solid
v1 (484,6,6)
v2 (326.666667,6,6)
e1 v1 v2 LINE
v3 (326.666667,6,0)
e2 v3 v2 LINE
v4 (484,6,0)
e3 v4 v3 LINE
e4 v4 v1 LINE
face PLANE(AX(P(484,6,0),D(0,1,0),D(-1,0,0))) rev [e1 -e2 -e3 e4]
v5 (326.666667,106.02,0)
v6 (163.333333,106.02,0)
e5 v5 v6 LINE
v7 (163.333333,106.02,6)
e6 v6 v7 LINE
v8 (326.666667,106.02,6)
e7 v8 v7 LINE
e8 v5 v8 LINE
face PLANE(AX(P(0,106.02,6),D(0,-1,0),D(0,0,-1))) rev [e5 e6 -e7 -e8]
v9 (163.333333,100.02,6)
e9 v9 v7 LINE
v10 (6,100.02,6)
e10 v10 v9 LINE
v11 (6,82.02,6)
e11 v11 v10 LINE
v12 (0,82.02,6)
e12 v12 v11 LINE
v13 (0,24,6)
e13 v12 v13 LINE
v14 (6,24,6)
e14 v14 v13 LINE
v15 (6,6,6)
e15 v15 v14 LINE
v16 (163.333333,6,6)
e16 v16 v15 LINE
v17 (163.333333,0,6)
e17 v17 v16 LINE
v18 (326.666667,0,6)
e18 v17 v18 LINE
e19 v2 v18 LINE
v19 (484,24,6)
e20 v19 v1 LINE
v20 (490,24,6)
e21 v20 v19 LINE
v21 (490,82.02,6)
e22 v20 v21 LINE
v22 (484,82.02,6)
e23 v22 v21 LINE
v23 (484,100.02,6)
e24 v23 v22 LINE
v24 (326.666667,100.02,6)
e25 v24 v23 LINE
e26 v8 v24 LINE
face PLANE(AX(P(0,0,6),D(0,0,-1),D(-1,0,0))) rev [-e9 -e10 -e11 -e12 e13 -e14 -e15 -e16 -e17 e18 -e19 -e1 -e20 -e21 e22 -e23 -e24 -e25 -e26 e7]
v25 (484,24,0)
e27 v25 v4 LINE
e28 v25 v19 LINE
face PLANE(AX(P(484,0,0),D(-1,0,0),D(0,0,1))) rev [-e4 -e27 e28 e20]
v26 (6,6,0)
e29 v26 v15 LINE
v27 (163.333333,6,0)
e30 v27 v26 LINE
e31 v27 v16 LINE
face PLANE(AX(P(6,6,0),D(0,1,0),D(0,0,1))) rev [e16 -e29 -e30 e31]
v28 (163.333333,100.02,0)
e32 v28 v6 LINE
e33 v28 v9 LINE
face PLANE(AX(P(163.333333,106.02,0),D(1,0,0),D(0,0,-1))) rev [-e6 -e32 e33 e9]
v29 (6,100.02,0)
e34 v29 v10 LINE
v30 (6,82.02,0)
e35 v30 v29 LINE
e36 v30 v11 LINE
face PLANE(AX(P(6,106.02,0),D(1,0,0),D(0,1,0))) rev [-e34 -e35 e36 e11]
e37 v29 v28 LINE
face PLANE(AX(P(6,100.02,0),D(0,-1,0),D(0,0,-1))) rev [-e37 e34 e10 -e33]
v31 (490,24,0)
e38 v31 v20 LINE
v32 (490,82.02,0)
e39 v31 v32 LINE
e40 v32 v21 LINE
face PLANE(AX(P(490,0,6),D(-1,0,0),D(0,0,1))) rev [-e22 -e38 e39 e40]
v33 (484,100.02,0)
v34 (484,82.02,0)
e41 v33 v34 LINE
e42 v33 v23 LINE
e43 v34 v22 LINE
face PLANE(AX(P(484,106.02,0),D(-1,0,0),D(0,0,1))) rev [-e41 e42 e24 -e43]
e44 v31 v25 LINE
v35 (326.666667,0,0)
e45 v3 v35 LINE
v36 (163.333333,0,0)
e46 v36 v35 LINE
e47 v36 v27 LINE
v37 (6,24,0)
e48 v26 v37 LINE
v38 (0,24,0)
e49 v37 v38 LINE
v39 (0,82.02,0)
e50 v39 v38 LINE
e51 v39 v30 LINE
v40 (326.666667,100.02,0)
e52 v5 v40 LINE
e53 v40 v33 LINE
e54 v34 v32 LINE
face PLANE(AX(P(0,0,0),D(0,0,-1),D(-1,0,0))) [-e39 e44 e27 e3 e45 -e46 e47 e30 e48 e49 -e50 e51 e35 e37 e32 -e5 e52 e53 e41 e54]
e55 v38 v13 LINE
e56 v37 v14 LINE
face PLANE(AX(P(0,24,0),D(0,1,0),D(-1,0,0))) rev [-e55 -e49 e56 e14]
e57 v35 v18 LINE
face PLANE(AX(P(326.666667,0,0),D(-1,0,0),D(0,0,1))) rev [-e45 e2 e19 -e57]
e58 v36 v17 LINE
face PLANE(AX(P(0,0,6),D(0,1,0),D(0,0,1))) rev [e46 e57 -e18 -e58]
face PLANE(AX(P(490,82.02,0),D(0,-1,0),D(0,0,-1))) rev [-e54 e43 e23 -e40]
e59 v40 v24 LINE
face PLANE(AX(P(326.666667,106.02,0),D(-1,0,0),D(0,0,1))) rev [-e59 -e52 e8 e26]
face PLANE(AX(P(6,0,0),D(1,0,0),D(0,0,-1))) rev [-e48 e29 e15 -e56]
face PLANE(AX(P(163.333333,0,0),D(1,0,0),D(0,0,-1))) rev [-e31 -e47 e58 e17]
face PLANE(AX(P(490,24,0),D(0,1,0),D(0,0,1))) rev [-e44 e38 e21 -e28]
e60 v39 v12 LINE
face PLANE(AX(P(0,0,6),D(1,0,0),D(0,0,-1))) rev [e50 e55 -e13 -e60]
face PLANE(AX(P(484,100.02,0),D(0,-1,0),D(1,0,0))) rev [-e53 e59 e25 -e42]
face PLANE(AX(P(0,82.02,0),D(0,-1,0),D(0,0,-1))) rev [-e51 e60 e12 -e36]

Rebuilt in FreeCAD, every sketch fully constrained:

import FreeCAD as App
import Part
import Sketcher
Q = App.Units.Quantity

doc = App.newDocument("Part")
body = doc.addObject("PartDesign::Body", "Body")

# Sketch on XY plane
sketch1 = body.newObject("Sketcher::SketchObject", "Sketch")
sketch1.AttachmentSupport = (doc.getObject("XY_Plane"), [""])
sketch1.MapMode = "FlatFace"
sketch1.addGeometry(Part.LineSegment(App.Vector(0, 106.02, 0), App.Vector(0, 0, 0)), False)
sketch1.addGeometry(Part.LineSegment(App.Vector(0, 0, 0), App.Vector(490, 0, 0)), False)
sketch1.addGeometry(Part.LineSegment(App.Vector(490, 0, 0), App.Vector(490, 106.02, 0)), False)
sketch1.addGeometry(Part.LineSegment(App.Vector(490, 106.02, 0), App.Vector(0, 106.02, 0)), False)
sketch1.addConstraint(Sketcher.Constraint("Coincident", 0, 2, 1, 1))
sketch1.addConstraint(Sketcher.Constraint("Coincident", 1, 2, 2, 1))
sketch1.addConstraint(Sketcher.Constraint("Coincident", 2, 2, 3, 1))
sketch1.addConstraint(Sketcher.Constraint("Coincident", 3, 2, 0, 1))
sketch1.addConstraint(Sketcher.Constraint("Vertical", 0))
sketch1.addConstraint(Sketcher.Constraint("Horizontal", 1))
sketch1.addConstraint(Sketcher.Constraint("Vertical", 2))
sketch1.addConstraint(Sketcher.Constraint("Horizontal", 3))
sketch1.addConstraint(Sketcher.Constraint("Coincident", 0, 2, -1, 1))
sketch1.addConstraint(Sketcher.Constraint("DistanceX", 1, 1, 1, 2, Q("490 mm")))
sketch1.addConstraint(Sketcher.Constraint("DistanceY", 0, 2, 0, 1, Q("106.02 mm")))
pad1 = body.newObject("PartDesign::Pad", "Pad")
pad1.Profile = sketch1
pad1.Length = 6

# Sketch on XY plane
sketch2 = body.newObject("Sketcher::SketchObject", "Sketch001")
sketch2.AttachmentSupport = (doc.getObject("XY_Plane"), [""])
sketch2.MapMode = "FlatFace"
sketch2.AttachmentOffset = App.Placement(App.Vector(0, 0, 6), App.Rotation())
sketch2.addGeometry(Part.LineSegment(App.Vector(484, 24, 0), App.Vector(484, 0, 0)), False)
sketch2.addGeometry(Part.LineSegment(App.Vector(484, 0, 0), App.Vector(490, 0, 0)), False)
sketch2.addGeometry(Part.LineSegment(App.Vector(490, 0, 0), App.Vector(490, 24, 0)), False)
sketch2.addGeometry(Part.LineSegment(App.Vector(490, 24, 0), App.Vector(484, 24, 0)), False)
sketch2.addGeometry(Part.LineSegment(App.Vector(484, 106.02, 0), App.Vector(484, 82.02, 0)), False)
sketch2.addGeometry(Part.LineSegment(App.Vector(484, 82.02, 0), App.Vector(490, 82.02, 0)), False)
sketch2.addGeometry(Part.LineSegment(App.Vector(490, 82.02, 0), App.Vector(490, 106.02, 0)), False)
sketch2.addGeometry(Part.LineSegment(App.Vector(490, 106.02, 0), App.Vector(484, 106.02, 0)), False)
sketch2.addGeometry(Part.LineSegment(App.Vector(0, 106.02, 0), App.Vector(0, 82.02, 0)), False)
sketch2.addGeometry(Part.LineSegment(App.Vector(0, 82.02, 0), App.Vector(6, 82.02, 0)), False)
sketch2.addGeometry(Part.LineSegment(App.Vector(6, 82.02, 0), App.Vector(6, 106.02, 0)), False)
sketch2.addGeometry(Part.LineSegment(App.Vector(6, 106.02, 0), App.Vector(0, 106.02, 0)), False)
sketch2.addGeometry(Part.LineSegment(App.Vector(0, 24, 0), App.Vector(0, 0, 0)), False)
sketch2.addGeometry(Part.LineSegment(App.Vector(0, 0, 0), App.Vector(6, 0, 0)), False)
sketch2.addGeometry(Part.LineSegment(App.Vector(6, 0, 0), App.Vector(6, 24, 0)), False)
sketch2.addGeometry(Part.LineSegment(App.Vector(6, 24, 0), App.Vector(0, 24, 0)), False)
sketch2.addConstraint(Sketcher.Constraint("Coincident", 0, 2, 1, 1))
sketch2.addConstraint(Sketcher.Constraint("Coincident", 1, 2, 2, 1))
sketch2.addConstraint(Sketcher.Constraint("Coincident", 2, 2, 3, 1))
sketch2.addConstraint(Sketcher.Constraint("Coincident", 3, 2, 0, 1))
sketch2.addConstraint(Sketcher.Constraint("Coincident", 4, 2, 5, 1))
sketch2.addConstraint(Sketcher.Constraint("Coincident", 5, 2, 6, 1))
sketch2.addConstraint(Sketcher.Constraint("Coincident", 6, 2, 7, 1))
sketch2.addConstraint(Sketcher.Constraint("Coincident", 7, 2, 4, 1))
sketch2.addConstraint(Sketcher.Constraint("Coincident", 8, 2, 9, 1))
sketch2.addConstraint(Sketcher.Constraint("Coincident", 9, 2, 10, 1))
sketch2.addConstraint(Sketcher.Constraint("Coincident", 10, 2, 11, 1))
sketch2.addConstraint(Sketcher.Constraint("Coincident", 11, 2, 8, 1))
sketch2.addConstraint(Sketcher.Constraint("Coincident", 12, 2, 13, 1))
sketch2.addConstraint(Sketcher.Constraint("Coincident", 13, 2, 14, 1))
sketch2.addConstraint(Sketcher.Constraint("Coincident", 14, 2, 15, 1))
sketch2.addConstraint(Sketcher.Constraint("Coincident", 15, 2, 12, 1))
sketch2.addConstraint(Sketcher.Constraint("Vertical", 0))
sketch2.addConstraint(Sketcher.Constraint("Horizontal", 1))
sketch2.addConstraint(Sketcher.Constraint("Vertical", 2))
sketch2.addConstraint(Sketcher.Constraint("Horizontal", 3))
sketch2.addConstraint(Sketcher.Constraint("Vertical", 4))
sketch2.addConstraint(Sketcher.Constraint("Horizontal", 5))
sketch2.addConstraint(Sketcher.Constraint("Vertical", 6))
sketch2.addConstraint(Sketcher.Constraint("Horizontal", 7))
sketch2.addConstraint(Sketcher.Constraint("Vertical", 8))
sketch2.addConstraint(Sketcher.Constraint("Horizontal", 9))
sketch2.addConstraint(Sketcher.Constraint("Vertical", 10))
sketch2.addConstraint(Sketcher.Constraint("Horizontal", 11))
sketch2.addConstraint(Sketcher.Constraint("Vertical", 12))
sketch2.addConstraint(Sketcher.Constraint("Horizontal", 13))
sketch2.addConstraint(Sketcher.Constraint("Vertical", 14))
sketch2.addConstraint(Sketcher.Constraint("Horizontal", 15))
sketch2.addConstraint(Sketcher.Constraint("Coincident", 12, 2, -1, 1))
sketch2.addConstraint(Sketcher.Constraint("PointOnObject", 0, 2, -1))
sketch2.addConstraint(Sketcher.Constraint("PointOnObject", 8, 2, -2))
sketch2.addConstraint(Sketcher.Constraint("Horizontal", 5, 2, 8, 2))
sketch2.addConstraint(Sketcher.Constraint("Horizontal", 7, 2, 10, 2))
sketch2.addConstraint(Sketcher.Constraint("Horizontal", 3, 2, 14, 2))
sketch2.addConstraint(Sketcher.Constraint("Vertical", 3, 2, 4, 2))
sketch2.addConstraint(Sketcher.Constraint("Vertical", 2, 2, 5, 2))
sketch2.addConstraint(Sketcher.Constraint("Vertical", 10, 2, 13, 2))
sketch2.addConstraint(Sketcher.Constraint("Equal", 7, 9))
sketch2.addConstraint(Sketcher.Constraint("Equal", 2, 4))
sketch2.addConstraint(Sketcher.Constraint("DistanceX", 1, 1, 1, 2, Q("6 mm")))
sketch2.addConstraint(Sketcher.Constraint("DistanceY", 0, 2, 0, 1, Q("24 mm")))
sketch2.addConstraint(Sketcher.Constraint("DistanceX", -1, 1, 0, 2, Q("484 mm")))
sketch2.addConstraint(Sketcher.Constraint("DistanceY", -1, 1, 4, 2, Q("82.02 mm")))
pocket1 = body.newObject("PartDesign::Pocket", "Pocket")
pocket1.Profile = sketch2
pocket1.Type = "ThroughAll"

# Sketch on XY plane
sketch3 = body.newObject("Sketcher::SketchObject", "Sketch002")
sketch3.AttachmentSupport = (doc.getObject("XY_Plane"), [""])
sketch3.MapMode = "FlatFace"
sketch3.AttachmentOffset = App.Placement(App.Vector(0, 0, 6), App.Rotation())
sketch3.addGeometry(Part.LineSegment(App.Vector(6, 6, 0), App.Vector(6, 0, 0)), False)
sketch3.addGeometry(Part.LineSegment(App.Vector(6, 0, 0), App.Vector(163.333333, 0, 0)), False)
sketch3.addGeometry(Part.LineSegment(App.Vector(163.333333, 0, 0), App.Vector(163.333333, 6, 0)), False)
sketch3.addGeometry(Part.LineSegment(App.Vector(163.333333, 6, 0), App.Vector(6, 6, 0)), False)
sketch3.addGeometry(Part.LineSegment(App.Vector(326.666667, 6, 0), App.Vector(326.666667, 0, 0)), False)
sketch3.addGeometry(Part.LineSegment(App.Vector(326.666667, 0, 0), App.Vector(484, 0, 0)), False)
sketch3.addGeometry(Part.LineSegment(App.Vector(484, 0, 0), App.Vector(484, 6, 0)), False)
sketch3.addGeometry(Part.LineSegment(App.Vector(484, 6, 0), App.Vector(326.666667, 6, 0)), False)
sketch3.addGeometry(Part.LineSegment(App.Vector(6, 106.02, 0), App.Vector(6, 100.02, 0)), False)
sketch3.addGeometry(Part.LineSegment(App.Vector(6, 100.02, 0), App.Vector(163.333333, 100.02, 0)), False)
sketch3.addGeometry(Part.LineSegment(App.Vector(163.333333, 100.02, 0), App.Vector(163.333333, 106.02, 0)), False)
sketch3.addGeometry(Part.LineSegment(App.Vector(163.333333, 106.02, 0), App.Vector(6, 106.02, 0)), False)
sketch3.addGeometry(Part.LineSegment(App.Vector(326.666667, 106.02, 0), App.Vector(326.666667, 100.02, 0)), False)
sketch3.addGeometry(Part.LineSegment(App.Vector(326.666667, 100.02, 0), App.Vector(484, 100.02, 0)), False)
sketch3.addGeometry(Part.LineSegment(App.Vector(484, 100.02, 0), App.Vector(484, 106.02, 0)), False)
sketch3.addGeometry(Part.LineSegment(App.Vector(484, 106.02, 0), App.Vector(326.666667, 106.02, 0)), False)
sketch3.addConstraint(Sketcher.Constraint("Coincident", 0, 2, 1, 1))
sketch3.addConstraint(Sketcher.Constraint("Coincident", 1, 2, 2, 1))
sketch3.addConstraint(Sketcher.Constraint("Coincident", 2, 2, 3, 1))
sketch3.addConstraint(Sketcher.Constraint("Coincident", 3, 2, 0, 1))
sketch3.addConstraint(Sketcher.Constraint("Coincident", 4, 2, 5, 1))
sketch3.addConstraint(Sketcher.Constraint("Coincident", 5, 2, 6, 1))
sketch3.addConstraint(Sketcher.Constraint("Coincident", 6, 2, 7, 1))
sketch3.addConstraint(Sketcher.Constraint("Coincident", 7, 2, 4, 1))
sketch3.addConstraint(Sketcher.Constraint("Coincident", 8, 2, 9, 1))
sketch3.addConstraint(Sketcher.Constraint("Coincident", 9, 2, 10, 1))
sketch3.addConstraint(Sketcher.Constraint("Coincident", 10, 2, 11, 1))
sketch3.addConstraint(Sketcher.Constraint("Coincident", 11, 2, 8, 1))
sketch3.addConstraint(Sketcher.Constraint("Coincident", 12, 2, 13, 1))
sketch3.addConstraint(Sketcher.Constraint("Coincident", 13, 2, 14, 1))
sketch3.addConstraint(Sketcher.Constraint("Coincident", 14, 2, 15, 1))
sketch3.addConstraint(Sketcher.Constraint("Coincident", 15, 2, 12, 1))
sketch3.addConstraint(Sketcher.Constraint("Vertical", 0))
sketch3.addConstraint(Sketcher.Constraint("Horizontal", 1))
sketch3.addConstraint(Sketcher.Constraint("Vertical", 2))
sketch3.addConstraint(Sketcher.Constraint("Horizontal", 3))
sketch3.addConstraint(Sketcher.Constraint("Vertical", 4))
sketch3.addConstraint(Sketcher.Constraint("Horizontal", 5))
sketch3.addConstraint(Sketcher.Constraint("Vertical", 6))
sketch3.addConstraint(Sketcher.Constraint("Horizontal", 7))
sketch3.addConstraint(Sketcher.Constraint("Vertical", 8))
sketch3.addConstraint(Sketcher.Constraint("Horizontal", 9))
sketch3.addConstraint(Sketcher.Constraint("Vertical", 10))
sketch3.addConstraint(Sketcher.Constraint("Horizontal", 11))
sketch3.addConstraint(Sketcher.Constraint("Vertical", 12))
sketch3.addConstraint(Sketcher.Constraint("Horizontal", 13))
sketch3.addConstraint(Sketcher.Constraint("Vertical", 14))
sketch3.addConstraint(Sketcher.Constraint("Horizontal", 15))
sketch3.addConstraint(Sketcher.Constraint("PointOnObject", 0, 2, -1))
sketch3.addConstraint(Sketcher.Constraint("PointOnObject", 4, 2, -1))
sketch3.addConstraint(Sketcher.Constraint("Horizontal", 3, 2, 6, 2))
sketch3.addConstraint(Sketcher.Constraint("Horizontal", 9, 2, 12, 2))
sketch3.addConstraint(Sketcher.Constraint("Horizontal", 11, 2, 14, 2))
sketch3.addConstraint(Sketcher.Constraint("Vertical", 3, 2, 8, 2))
sketch3.addConstraint(Sketcher.Constraint("Vertical", 2, 2, 9, 2))
sketch3.addConstraint(Sketcher.Constraint("Vertical", 7, 2, 12, 2))
sketch3.addConstraint(Sketcher.Constraint("Vertical", 6, 2, 13, 2))
sketch3.addConstraint(Sketcher.Constraint("Equal", 3, 5))
sketch3.addConstraint(Sketcher.Constraint("Equal", 6, 8))
sketch3.addConstraint(Sketcher.Constraint("DistanceY", 0, 2, 0, 1, Q("6 mm")))
sketch3.addConstraint(Sketcher.Constraint("DistanceX", -1, 1, 0, 2, Q("6 mm")))
sketch3.addConstraint(Sketcher.Constraint("DistanceX", -1, 1, 5, 2, Q("484 mm")))
sketch3.addConstraint(Sketcher.Constraint("DistanceY", -1, 1, 8, 2, Q("100.02 mm")))
sketch3.addConstraint(Sketcher.Constraint("DistanceX", 1, 1, 1, 2, Q("157.333333 mm")))
pocket2 = body.newObject("PartDesign::Pocket", "Pocket001")
pocket2.Profile = sketch3
pocket2.Type = "ThroughAll"

doc.recompute()
